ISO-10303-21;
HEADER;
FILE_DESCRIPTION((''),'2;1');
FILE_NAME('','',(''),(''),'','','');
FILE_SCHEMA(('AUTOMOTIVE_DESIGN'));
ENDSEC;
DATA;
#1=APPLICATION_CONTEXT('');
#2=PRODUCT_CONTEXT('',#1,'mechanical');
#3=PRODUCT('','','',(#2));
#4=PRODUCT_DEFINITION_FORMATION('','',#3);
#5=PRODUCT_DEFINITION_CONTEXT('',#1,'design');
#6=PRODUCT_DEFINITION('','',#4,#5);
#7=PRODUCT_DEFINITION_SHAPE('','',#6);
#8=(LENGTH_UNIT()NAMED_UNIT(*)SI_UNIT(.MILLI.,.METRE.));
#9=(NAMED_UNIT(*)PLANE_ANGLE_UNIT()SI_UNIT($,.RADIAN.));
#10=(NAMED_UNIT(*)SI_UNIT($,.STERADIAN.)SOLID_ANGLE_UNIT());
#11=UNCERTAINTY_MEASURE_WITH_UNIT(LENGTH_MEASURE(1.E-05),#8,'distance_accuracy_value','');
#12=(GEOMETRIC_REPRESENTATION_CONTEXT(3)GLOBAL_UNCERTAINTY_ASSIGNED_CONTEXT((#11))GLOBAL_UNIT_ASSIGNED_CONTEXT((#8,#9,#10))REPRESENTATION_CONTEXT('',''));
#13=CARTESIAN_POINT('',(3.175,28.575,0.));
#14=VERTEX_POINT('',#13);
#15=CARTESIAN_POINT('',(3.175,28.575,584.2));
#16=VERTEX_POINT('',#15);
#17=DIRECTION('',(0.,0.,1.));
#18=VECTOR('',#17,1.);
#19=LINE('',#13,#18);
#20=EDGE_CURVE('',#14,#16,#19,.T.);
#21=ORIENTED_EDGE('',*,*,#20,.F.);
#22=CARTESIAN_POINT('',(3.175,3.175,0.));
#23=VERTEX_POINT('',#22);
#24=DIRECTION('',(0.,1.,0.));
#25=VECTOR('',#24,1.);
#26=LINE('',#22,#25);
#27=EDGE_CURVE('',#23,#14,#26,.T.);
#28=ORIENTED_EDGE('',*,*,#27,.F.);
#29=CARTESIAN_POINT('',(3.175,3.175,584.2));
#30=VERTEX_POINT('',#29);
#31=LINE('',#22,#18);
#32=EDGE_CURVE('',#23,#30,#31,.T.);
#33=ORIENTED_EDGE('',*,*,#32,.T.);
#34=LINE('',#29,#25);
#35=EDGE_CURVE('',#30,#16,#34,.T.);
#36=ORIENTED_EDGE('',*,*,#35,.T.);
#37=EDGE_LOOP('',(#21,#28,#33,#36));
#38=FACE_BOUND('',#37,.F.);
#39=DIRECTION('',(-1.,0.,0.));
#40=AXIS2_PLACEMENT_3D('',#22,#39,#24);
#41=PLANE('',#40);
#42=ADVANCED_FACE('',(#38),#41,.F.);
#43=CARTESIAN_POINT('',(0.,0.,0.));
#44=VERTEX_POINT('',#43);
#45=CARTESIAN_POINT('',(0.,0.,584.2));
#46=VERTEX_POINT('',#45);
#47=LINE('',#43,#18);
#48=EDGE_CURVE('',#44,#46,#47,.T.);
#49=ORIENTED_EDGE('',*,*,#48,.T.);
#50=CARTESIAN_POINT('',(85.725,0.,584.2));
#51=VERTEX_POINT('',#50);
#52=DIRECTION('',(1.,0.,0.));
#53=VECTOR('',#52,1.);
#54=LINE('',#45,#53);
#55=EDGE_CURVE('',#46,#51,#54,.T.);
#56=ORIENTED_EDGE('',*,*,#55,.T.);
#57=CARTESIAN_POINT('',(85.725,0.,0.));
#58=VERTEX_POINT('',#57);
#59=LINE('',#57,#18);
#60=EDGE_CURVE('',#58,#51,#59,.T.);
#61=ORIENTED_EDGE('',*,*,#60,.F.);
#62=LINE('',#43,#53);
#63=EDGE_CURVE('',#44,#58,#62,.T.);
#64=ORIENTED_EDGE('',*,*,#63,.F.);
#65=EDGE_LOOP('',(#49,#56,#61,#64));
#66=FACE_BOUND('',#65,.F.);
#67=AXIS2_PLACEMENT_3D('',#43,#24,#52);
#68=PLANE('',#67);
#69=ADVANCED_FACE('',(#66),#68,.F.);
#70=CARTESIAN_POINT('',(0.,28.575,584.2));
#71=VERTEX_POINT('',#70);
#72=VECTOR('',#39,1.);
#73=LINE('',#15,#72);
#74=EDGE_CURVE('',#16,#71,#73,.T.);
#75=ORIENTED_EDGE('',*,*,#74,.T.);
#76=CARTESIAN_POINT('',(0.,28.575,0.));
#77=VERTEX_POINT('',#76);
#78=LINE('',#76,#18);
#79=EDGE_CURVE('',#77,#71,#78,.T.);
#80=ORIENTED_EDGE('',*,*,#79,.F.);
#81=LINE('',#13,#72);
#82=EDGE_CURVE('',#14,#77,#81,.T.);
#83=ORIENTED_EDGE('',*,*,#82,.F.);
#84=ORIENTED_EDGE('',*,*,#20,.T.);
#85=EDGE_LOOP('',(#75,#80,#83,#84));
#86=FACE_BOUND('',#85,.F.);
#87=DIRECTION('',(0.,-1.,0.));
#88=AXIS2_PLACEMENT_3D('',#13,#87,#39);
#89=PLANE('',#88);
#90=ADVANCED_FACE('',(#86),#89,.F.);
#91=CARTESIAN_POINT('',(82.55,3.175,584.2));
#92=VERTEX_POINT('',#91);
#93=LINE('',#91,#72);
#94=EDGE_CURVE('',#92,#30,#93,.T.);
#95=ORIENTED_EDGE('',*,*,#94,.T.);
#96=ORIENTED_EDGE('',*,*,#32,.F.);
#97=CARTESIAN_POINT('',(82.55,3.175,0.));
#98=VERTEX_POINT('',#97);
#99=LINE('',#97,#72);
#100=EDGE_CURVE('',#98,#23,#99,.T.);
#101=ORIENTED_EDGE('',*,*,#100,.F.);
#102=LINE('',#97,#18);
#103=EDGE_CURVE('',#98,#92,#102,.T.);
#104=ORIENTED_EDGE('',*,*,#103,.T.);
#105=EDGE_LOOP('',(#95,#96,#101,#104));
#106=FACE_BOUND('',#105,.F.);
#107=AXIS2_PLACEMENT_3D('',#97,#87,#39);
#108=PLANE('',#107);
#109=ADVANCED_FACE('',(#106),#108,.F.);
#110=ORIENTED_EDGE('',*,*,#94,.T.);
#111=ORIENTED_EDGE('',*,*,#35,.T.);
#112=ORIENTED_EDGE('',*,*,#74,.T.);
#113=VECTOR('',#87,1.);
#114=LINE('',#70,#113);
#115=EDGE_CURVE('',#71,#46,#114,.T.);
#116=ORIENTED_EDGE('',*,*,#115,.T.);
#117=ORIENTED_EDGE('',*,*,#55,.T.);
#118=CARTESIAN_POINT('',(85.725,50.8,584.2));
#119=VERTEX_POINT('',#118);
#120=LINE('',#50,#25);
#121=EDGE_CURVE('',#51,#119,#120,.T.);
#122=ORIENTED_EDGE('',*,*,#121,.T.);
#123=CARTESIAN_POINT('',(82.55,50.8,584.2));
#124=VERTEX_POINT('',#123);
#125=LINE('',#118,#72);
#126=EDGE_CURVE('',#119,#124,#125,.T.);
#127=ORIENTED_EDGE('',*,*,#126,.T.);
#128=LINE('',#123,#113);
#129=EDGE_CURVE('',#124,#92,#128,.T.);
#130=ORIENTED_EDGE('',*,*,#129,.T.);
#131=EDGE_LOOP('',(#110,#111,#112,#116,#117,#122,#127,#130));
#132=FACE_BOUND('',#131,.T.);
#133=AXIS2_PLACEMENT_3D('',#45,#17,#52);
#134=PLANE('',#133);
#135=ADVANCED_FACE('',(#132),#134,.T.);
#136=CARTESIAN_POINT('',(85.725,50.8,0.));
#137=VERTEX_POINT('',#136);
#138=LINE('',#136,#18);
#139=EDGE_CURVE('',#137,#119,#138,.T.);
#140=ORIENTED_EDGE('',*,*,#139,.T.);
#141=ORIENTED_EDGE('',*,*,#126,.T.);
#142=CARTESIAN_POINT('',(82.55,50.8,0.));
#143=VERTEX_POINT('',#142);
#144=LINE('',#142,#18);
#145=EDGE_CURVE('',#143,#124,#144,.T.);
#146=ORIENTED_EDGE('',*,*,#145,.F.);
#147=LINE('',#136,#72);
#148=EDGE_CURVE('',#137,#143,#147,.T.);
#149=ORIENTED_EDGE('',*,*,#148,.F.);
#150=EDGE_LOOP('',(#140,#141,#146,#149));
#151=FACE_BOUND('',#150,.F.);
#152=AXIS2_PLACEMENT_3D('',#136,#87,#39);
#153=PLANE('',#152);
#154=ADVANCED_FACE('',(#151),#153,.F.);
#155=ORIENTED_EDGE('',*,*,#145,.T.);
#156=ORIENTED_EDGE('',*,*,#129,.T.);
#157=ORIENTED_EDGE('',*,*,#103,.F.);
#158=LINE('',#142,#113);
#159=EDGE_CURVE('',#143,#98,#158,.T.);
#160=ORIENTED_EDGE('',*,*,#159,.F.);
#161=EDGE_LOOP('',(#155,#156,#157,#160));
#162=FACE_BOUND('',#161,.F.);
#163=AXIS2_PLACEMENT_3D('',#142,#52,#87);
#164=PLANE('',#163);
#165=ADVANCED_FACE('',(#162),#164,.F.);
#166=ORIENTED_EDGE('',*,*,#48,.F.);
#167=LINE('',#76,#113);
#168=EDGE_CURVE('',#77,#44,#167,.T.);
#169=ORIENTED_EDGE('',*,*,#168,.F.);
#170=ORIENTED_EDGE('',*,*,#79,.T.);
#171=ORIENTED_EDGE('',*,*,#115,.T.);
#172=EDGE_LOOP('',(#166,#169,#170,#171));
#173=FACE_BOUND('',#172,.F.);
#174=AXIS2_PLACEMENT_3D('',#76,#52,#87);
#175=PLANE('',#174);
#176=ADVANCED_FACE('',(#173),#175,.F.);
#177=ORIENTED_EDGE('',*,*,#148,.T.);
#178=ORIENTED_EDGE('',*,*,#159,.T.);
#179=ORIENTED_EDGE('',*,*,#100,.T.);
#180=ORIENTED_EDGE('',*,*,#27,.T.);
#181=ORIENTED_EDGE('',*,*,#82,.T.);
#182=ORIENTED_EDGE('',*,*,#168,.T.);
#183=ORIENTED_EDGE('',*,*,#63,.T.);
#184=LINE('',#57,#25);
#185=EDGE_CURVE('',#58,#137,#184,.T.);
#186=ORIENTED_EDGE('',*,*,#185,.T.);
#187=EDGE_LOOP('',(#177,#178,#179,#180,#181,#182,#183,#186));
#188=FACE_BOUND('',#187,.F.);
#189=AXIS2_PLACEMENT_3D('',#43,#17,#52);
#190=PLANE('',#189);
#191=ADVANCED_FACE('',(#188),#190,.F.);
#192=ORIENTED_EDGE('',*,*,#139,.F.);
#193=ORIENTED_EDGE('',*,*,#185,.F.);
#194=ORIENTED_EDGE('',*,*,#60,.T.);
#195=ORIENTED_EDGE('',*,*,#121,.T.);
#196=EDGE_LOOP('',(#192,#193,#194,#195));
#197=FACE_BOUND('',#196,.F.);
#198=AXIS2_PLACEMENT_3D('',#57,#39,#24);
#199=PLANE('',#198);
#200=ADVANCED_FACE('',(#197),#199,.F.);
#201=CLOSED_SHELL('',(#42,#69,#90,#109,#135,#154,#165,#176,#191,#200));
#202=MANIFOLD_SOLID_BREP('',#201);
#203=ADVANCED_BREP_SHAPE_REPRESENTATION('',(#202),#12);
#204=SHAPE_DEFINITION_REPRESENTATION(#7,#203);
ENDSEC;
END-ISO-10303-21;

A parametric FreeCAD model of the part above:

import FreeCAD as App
import Part
import Sketcher
Q = App.Units.Quantity


def add_polygon(sketch, points):
    """Adds a closed chain of lines whose ends are joined by coincident constraints."""
    first, n = sketch.GeometryCount, len(points)
    for a, b in zip(points, points[1:] + points[:1]):
        sketch.addGeometry(Part.LineSegment(App.Vector(*a, 0), App.Vector(*b, 0)), False)
    for i in range(n):
        sketch.addConstraint(Sketcher.Constraint("Coincident", first + i, 2, first + (i + 1) % n, 1))

doc = App.newDocument("Part")
body = doc.addObject("PartDesign::Body", "Body")

sketch1 = body.newObject("Sketcher::SketchObject", "Sketch")
sketch1.AttachmentSupport = (doc.getObject("XY_Plane"), [""])
sketch1.MapMode = "FlatFace"
add_polygon(sketch1, [(0, 28.6), (0, 0), (85.7, 0), (85.7, 50.8), (82.5, 50.8), (82.5, 3.2), (3.2, 3.2), (3.2, 28.6)])
sketch1.addConstraint([
    Sketcher.Constraint("Vertical", 0),
    Sketcher.Constraint("Horizontal", 1),
    Sketcher.Constraint("Vertical", 2),
    Sketcher.Constraint("Horizontal", 3),
    Sketcher.Constraint("Vertical", 4),
    Sketcher.Constraint("Horizontal", 5),
    Sketcher.Constraint("Vertical", 6),
    Sketcher.Constraint("Horizontal", 7),
    Sketcher.Constraint("Coincident", 0, 2, -1, 1),
    Sketcher.Constraint("Equal", 3, 7),
    Sketcher.Constraint("DistanceY", 2, 1, 2, 2, Q("2 in")),
    Sketcher.Constraint("DistanceY", 6, 1, 6, 2, Q("1 in")),
    Sketcher.Constraint("DistanceX", 1, 1, 1, 2, Q("3.375 in")),
    Sketcher.Constraint("DistanceX", 3, 2, 3, 1, Q("0.125 in")),
    Sketcher.Constraint("DistanceY", 4, 2, 4, 1, Q("1.875 in")),
])
pad1 = body.newObject("PartDesign::Pad", "Pad")
pad1.Profile = sketch1
pad1.Length = Q("23 in")

doc.recompute()
